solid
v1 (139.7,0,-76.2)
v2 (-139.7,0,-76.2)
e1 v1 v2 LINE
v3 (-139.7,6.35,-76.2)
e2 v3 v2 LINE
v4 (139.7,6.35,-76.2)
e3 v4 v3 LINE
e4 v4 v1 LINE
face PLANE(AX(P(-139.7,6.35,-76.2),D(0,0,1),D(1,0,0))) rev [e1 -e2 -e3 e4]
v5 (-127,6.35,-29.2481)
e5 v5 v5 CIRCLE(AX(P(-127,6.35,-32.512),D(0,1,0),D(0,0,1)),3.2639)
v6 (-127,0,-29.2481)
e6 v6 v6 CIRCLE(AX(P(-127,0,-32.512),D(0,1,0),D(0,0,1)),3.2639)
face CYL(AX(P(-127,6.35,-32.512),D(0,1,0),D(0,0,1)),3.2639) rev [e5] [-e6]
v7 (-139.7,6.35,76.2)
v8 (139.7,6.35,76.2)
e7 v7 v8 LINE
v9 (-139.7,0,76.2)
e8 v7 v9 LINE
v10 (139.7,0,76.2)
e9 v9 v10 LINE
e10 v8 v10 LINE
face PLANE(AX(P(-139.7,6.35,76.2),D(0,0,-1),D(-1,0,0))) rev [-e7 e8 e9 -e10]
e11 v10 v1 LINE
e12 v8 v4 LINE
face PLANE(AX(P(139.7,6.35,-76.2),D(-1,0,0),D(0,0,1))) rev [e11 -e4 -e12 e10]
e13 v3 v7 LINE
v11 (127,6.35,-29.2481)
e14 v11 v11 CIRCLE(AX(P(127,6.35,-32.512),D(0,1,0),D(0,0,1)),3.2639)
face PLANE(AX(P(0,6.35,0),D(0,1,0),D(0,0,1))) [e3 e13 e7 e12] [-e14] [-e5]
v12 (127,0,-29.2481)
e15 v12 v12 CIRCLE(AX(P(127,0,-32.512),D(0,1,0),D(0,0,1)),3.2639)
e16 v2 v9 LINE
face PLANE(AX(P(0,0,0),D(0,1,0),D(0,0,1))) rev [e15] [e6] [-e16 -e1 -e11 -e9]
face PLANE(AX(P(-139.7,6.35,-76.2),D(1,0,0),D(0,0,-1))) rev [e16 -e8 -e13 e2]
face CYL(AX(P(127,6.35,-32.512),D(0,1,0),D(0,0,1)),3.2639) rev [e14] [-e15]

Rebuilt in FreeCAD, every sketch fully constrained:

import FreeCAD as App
import Part
import Sketcher

V = App.Vector
Q = App.Units.Quantity


def add_polygon(sketch, points):
    """Adds a closed chain of lines whose ends are joined by coincident constraints."""
    first, n = sketch.GeometryCount, len(points)
    for a, b in zip(points, points[1:] + points[:1]):
        sketch.addGeometry(Part.LineSegment(App.Vector(*a, 0), App.Vector(*b, 0)), False)
    for i in range(n):
        sketch.addConstraint(Sketcher.Constraint("Coincident", first + i, 2, first + (i + 1) % n, 1))

doc = App.newDocument("Part")
body = doc.addObject("PartDesign::Body", "Body")

# Sketch on XZ plane
sketch1 = doc.addObject("Sketcher::SketchObject", "Sketch")
body.addObject(sketch1)
sketch1.AttachmentSupport = (doc.XZ_Plane, [""])
sketch1.MapMode = "FlatFace"
add_polygon(sketch1, [(-140, -76), (-140, 76), (140, 76), (140, -76)])  # lines 0-3
sketch1.addConstraint([
    Sketcher.Constraint("Vertical", 0),
    Sketcher.Constraint("Horizontal", 1),
    Sketcher.Constraint("Vertical", 2),
    Sketcher.Constraint("Horizontal", 3),
    Sketcher.Constraint("Symmetric", 0, 2, 2, 2, -1, 1),
    Sketcher.Constraint("DistanceX", 1, 1, 1, 2, Q("11 in")),
    Sketcher.Constraint("DistanceY", 0, 1, 0, 2, Q("6 in")),
])
pad1 = doc.addObject("PartDesign::Pad", "Pad")
body.addObject(pad1)
pad1.Profile = sketch1
pad1.Length = Q("0.25 in")
pad1.Reversed = True

# Sketch on XZ plane
sketch2 = doc.addObject("Sketcher::SketchObject", "Sketch001")
body.addObject(sketch2)
sketch2.AttachmentSupport = (doc.XZ_Plane, [""])
sketch2.MapMode = "FlatFace"
sketch2.AttachmentOffset = App.Placement(V(0, 0, -0.25 * 25.4), App.Rotation())
sketch2.addGeometry([
    Part.Circle(V(-127, -32.5, 0), V(0, 0, 1), 3.3),
    Part.Circle(V(127, -32.5, 0), V(0, 0, 1), 3.3),
], False)
sketch2.addConstraint([
    Sketcher.Constraint("Equal", 0, 1),
    Sketcher.Constraint("Symmetric", 0, 3, 1, 3, -2),
    Sketcher.Constraint("Diameter", 0, Q("0.257 in")),
    Sketcher.Constraint("DistanceX", 0, 3, -1, 1, Q("5 in")),
    Sketcher.Constraint("DistanceY", 0, 3, -1, 1, Q("1.28 in")),
])
doc.recompute()
hole = doc.addObject("PartDesign::Hole", "Hole")
body.addObject(hole)
hole.Profile = sketch2
hole.ThreadType = "None"
hole.Diameter = Q("0.257 in")
hole.DepthType = "ThroughAll"
hole.Reversed = True

doc.recompute()
